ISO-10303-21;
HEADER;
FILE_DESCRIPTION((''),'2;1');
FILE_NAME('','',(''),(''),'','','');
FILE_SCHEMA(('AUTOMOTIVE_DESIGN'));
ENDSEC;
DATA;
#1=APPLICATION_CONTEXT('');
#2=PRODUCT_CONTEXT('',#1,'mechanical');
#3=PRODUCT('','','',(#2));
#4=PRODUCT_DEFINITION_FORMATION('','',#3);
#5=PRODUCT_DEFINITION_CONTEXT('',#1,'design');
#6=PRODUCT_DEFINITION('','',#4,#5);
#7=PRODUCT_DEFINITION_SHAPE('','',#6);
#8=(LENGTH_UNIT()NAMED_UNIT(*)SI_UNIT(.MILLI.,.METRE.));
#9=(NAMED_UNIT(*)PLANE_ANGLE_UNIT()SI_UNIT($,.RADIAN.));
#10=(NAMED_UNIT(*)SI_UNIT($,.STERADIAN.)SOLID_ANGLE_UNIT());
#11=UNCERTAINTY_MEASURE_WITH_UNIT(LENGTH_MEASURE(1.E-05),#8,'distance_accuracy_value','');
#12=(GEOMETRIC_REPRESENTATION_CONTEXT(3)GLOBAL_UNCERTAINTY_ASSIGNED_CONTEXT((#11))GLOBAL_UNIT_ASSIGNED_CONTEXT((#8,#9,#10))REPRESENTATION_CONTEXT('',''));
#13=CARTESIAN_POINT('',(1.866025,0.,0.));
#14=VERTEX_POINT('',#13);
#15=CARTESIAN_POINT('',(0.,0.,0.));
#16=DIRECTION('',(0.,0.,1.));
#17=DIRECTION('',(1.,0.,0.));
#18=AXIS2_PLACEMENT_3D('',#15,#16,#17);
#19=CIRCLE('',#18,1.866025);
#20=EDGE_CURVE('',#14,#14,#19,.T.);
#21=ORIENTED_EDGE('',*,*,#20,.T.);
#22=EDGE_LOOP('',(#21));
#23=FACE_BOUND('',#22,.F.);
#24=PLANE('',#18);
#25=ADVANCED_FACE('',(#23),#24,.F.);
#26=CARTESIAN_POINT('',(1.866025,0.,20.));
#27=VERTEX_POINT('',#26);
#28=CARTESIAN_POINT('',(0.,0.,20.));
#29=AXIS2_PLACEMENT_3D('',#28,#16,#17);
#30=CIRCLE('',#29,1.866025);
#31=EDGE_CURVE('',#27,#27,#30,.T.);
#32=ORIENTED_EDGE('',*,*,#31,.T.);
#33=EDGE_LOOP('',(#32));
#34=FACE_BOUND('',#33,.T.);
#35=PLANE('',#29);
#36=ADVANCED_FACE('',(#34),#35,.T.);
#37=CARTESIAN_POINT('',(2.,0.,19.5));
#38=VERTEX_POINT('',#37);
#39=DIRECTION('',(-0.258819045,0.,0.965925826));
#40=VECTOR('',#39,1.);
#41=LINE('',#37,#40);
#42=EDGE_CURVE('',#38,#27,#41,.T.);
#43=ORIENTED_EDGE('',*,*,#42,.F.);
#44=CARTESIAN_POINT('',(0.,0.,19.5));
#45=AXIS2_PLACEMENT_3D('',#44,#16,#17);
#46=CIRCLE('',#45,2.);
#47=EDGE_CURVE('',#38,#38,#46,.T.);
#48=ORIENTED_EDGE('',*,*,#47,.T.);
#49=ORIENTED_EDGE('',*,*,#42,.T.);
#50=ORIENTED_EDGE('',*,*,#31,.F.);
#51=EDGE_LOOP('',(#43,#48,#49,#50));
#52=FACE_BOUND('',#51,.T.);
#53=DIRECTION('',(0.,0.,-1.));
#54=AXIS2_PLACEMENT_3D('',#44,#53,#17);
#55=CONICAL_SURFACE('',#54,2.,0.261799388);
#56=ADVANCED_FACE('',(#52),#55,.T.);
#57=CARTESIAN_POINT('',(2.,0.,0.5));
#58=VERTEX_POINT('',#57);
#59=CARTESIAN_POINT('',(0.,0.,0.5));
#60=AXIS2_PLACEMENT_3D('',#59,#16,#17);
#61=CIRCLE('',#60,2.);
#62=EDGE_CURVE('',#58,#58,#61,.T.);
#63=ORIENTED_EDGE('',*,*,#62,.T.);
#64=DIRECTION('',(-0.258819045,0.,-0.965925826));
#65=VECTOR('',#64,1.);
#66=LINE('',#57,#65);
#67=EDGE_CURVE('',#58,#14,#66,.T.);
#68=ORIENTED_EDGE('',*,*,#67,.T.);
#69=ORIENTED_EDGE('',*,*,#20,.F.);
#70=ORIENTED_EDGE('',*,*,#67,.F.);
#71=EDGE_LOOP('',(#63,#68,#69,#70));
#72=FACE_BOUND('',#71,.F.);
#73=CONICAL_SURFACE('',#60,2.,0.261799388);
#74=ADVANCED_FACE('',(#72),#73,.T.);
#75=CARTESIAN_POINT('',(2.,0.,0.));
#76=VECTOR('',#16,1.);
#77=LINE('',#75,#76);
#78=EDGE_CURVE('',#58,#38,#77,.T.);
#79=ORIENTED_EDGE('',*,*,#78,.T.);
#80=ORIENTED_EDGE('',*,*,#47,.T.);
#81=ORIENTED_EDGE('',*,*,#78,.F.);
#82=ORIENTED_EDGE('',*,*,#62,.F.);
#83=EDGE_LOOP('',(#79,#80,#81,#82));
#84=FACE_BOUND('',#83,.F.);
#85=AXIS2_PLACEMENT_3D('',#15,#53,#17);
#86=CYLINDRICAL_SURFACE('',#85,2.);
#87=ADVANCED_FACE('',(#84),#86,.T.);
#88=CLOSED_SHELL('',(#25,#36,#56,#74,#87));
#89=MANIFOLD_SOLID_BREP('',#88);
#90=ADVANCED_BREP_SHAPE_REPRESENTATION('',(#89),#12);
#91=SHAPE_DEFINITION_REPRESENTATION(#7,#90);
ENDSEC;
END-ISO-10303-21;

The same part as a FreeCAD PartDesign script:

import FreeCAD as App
import Part
import Sketcher

V = App.Vector


def edges_at(feature, points):
    """Names of the edges that pass closest to the given points."""
    edges = feature.Shape.Edges
    near = lambda p: min(range(len(edges)), key=lambda i: edges[i].distToShape(Part.Vertex(*p))[0])
    return sorted({f"Edge{near(p) + 1}" for p in points})

doc = App.newDocument("Part")
body = doc.addObject("PartDesign::Body", "Body")

sketch1 = body.newObject("Sketcher::SketchObject", "Sketch")
sketch1.AttachmentSupport = (doc.getObject("XY_Plane"), [""])
sketch1.MapMode = "FlatFace"
sketch1.addGeometry(Part.Circle(V(0, 0, 0), V(0, 0, 1), 2), False)
sketch1.addConstraint([
    Sketcher.Constraint("Coincident", 0, 3, -1, 1),
    Sketcher.Constraint("Diameter", 0, 4.0),
])
pad1 = body.newObject("PartDesign::Pad", "Pad")
pad1.Profile = sketch1
pad1.Length = 20
doc.recompute()

chamfer = body.newObject("PartDesign::Chamfer", "Chamfer")
chamfer.Base = (pad1, edges_at(pad1, [(-2, 0, 0), (-2, 0, 20)]))
chamfer.ChamferType = "Distance and Angle"
chamfer.Size = 0.5
chamfer.Angle = 15

doc.recompute()
